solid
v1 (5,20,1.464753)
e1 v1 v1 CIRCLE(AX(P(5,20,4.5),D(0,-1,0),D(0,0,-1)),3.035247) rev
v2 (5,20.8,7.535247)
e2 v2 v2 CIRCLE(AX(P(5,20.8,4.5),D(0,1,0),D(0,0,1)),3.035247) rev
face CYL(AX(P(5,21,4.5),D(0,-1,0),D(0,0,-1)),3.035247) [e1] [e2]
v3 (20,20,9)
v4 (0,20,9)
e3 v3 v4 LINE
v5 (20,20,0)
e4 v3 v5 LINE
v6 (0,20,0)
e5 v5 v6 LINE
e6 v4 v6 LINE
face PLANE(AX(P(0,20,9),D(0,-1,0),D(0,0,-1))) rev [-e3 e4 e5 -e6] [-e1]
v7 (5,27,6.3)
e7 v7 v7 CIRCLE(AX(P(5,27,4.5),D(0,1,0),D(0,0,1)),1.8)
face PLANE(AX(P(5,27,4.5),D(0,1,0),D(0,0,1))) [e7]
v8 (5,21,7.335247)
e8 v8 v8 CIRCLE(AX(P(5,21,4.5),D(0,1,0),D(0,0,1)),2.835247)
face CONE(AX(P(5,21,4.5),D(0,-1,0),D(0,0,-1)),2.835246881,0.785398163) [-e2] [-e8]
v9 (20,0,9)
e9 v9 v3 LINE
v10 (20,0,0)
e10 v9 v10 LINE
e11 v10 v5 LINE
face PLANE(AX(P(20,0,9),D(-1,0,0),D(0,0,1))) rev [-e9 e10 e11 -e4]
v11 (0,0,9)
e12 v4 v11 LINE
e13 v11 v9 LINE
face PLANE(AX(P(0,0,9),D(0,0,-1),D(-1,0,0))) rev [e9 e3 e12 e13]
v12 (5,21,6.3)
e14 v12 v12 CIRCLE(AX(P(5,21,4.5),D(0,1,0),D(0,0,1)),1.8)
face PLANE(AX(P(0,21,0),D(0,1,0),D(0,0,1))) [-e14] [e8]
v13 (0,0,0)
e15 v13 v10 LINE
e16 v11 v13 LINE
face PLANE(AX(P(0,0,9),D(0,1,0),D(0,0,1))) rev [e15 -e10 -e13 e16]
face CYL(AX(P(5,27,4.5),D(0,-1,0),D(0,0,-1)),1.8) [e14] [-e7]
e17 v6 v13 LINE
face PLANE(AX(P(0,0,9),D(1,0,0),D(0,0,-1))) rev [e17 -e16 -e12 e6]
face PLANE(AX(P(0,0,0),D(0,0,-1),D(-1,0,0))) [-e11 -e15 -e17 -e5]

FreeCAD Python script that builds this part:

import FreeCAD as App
import Part
import Sketcher
Q = App.Units.Quantity


def edges_at(feature, points):
    """Names of the edges that pass closest to the given points."""
    edges = feature.Shape.Edges
    near = lambda p: min(range(len(edges)), key=lambda i: edges[i].distToShape(Part.Vertex(*p))[0])
    return sorted({f"Edge{near(p) + 1}" for p in points})

doc = App.newDocument("Part")
body = doc.addObject("PartDesign::Body", "Body")

sketch1 = body.newObject("Sketcher::SketchObject", "Sketch")
sketch1.AttachmentSupport = (doc.getObject("XY_Plane"), [""])
sketch1.MapMode = "FlatFace"
sketch1.addGeometry([
    Part.LineSegment(App.Vector(0, 20, 0), App.Vector(0, 0, 0)),
    Part.LineSegment(App.Vector(0, 0, 0), App.Vector(20, 0, 0)),
    Part.LineSegment(App.Vector(20, 0, 0), App.Vector(20, 20, 0)),
    Part.LineSegment(App.Vector(20, 20, 0), App.Vector(0, 20, 0)),
], False)
sketch1.addConstraint([
    Sketcher.Constraint("Coincident", 0, 2, 1, 1),
    Sketcher.Constraint("Coincident", 1, 2, 2, 1),
    Sketcher.Constraint("Coincident", 2, 2, 3, 1),
    Sketcher.Constraint("Coincident", 3, 2, 0, 1),
    Sketcher.Constraint("Vertical", 0),
    Sketcher.Constraint("Horizontal", 1),
    Sketcher.Constraint("Vertical", 2),
    Sketcher.Constraint("Horizontal", 3),
    Sketcher.Constraint("Coincident", 0, 2, -1, 1),
    Sketcher.Constraint("Equal", 3, 0),
    Sketcher.Constraint("DistanceX", 1, 1, 1, 2, Q("20 mm")),
])
pad1 = body.newObject("PartDesign::Pad", "Pad")
pad1.Profile = sketch1
pad1.Length = 9

sketch2 = body.newObject("Sketcher::SketchObject", "Sketch001")
sketch2.AttachmentSupport = (doc.getObject("XZ_Plane"), [""])
sketch2.MapMode = "FlatFace"
sketch2.AttachmentOffset = App.Placement(App.Vector(0, 0, -20), App.Rotation())
sketch2.addGeometry(Part.Circle(App.Vector(5, 4.5, 0), App.Vector(0, 0, 1), 3), False)
sketch2.addConstraint([
    Sketcher.Constraint("DistanceX", -1, 1, 0, 3, Q("5 mm")),
    Sketcher.Constraint("DistanceY", -1, 1, 0, 3, Q("4.5 mm")),
    Sketcher.Constraint("Diameter", 0, Q("6.070494 mm")),
])
pad2 = body.newObject("PartDesign::Pad", "Pad001")
pad2.Profile = sketch2
pad2.Length = 1
pad2.Reversed = True
doc.recompute()

chamfer = body.newObject("PartDesign::Chamfer", "Chamfer")
chamfer.Base = (pad2, edges_at(pad2, [(7.256, 21, 6.53)]))
chamfer.Size = 0.2

sketch3 = body.newObject("Sketcher::SketchObject", "Sketch002")
sketch3.AttachmentSupport = (doc.getObject("XZ_Plane"), [""])
sketch3.MapMode = "FlatFace"
sketch3.AttachmentOffset = App.Placement(App.Vector(0, 0, -21), App.Rotation())
sketch3.addGeometry(Part.Circle(App.Vector(5, 4.5, 0), App.Vector(0, 0, 1), 1.8), False)
sketch3.addConstraint([
    Sketcher.Constraint("Diameter", 0, Q("3.6 mm")),
    Sketcher.Constraint("DistanceX", -1, 1, 0, 3, Q("5 mm")),
    Sketcher.Constraint("DistanceY", -1, 1, 0, 3, Q("4.5 mm")),
])
pad3 = body.newObject("PartDesign::Pad", "Pad002")
pad3.Profile = sketch3
pad3.Length = 6
pad3.Reversed = True

doc.recompute()
